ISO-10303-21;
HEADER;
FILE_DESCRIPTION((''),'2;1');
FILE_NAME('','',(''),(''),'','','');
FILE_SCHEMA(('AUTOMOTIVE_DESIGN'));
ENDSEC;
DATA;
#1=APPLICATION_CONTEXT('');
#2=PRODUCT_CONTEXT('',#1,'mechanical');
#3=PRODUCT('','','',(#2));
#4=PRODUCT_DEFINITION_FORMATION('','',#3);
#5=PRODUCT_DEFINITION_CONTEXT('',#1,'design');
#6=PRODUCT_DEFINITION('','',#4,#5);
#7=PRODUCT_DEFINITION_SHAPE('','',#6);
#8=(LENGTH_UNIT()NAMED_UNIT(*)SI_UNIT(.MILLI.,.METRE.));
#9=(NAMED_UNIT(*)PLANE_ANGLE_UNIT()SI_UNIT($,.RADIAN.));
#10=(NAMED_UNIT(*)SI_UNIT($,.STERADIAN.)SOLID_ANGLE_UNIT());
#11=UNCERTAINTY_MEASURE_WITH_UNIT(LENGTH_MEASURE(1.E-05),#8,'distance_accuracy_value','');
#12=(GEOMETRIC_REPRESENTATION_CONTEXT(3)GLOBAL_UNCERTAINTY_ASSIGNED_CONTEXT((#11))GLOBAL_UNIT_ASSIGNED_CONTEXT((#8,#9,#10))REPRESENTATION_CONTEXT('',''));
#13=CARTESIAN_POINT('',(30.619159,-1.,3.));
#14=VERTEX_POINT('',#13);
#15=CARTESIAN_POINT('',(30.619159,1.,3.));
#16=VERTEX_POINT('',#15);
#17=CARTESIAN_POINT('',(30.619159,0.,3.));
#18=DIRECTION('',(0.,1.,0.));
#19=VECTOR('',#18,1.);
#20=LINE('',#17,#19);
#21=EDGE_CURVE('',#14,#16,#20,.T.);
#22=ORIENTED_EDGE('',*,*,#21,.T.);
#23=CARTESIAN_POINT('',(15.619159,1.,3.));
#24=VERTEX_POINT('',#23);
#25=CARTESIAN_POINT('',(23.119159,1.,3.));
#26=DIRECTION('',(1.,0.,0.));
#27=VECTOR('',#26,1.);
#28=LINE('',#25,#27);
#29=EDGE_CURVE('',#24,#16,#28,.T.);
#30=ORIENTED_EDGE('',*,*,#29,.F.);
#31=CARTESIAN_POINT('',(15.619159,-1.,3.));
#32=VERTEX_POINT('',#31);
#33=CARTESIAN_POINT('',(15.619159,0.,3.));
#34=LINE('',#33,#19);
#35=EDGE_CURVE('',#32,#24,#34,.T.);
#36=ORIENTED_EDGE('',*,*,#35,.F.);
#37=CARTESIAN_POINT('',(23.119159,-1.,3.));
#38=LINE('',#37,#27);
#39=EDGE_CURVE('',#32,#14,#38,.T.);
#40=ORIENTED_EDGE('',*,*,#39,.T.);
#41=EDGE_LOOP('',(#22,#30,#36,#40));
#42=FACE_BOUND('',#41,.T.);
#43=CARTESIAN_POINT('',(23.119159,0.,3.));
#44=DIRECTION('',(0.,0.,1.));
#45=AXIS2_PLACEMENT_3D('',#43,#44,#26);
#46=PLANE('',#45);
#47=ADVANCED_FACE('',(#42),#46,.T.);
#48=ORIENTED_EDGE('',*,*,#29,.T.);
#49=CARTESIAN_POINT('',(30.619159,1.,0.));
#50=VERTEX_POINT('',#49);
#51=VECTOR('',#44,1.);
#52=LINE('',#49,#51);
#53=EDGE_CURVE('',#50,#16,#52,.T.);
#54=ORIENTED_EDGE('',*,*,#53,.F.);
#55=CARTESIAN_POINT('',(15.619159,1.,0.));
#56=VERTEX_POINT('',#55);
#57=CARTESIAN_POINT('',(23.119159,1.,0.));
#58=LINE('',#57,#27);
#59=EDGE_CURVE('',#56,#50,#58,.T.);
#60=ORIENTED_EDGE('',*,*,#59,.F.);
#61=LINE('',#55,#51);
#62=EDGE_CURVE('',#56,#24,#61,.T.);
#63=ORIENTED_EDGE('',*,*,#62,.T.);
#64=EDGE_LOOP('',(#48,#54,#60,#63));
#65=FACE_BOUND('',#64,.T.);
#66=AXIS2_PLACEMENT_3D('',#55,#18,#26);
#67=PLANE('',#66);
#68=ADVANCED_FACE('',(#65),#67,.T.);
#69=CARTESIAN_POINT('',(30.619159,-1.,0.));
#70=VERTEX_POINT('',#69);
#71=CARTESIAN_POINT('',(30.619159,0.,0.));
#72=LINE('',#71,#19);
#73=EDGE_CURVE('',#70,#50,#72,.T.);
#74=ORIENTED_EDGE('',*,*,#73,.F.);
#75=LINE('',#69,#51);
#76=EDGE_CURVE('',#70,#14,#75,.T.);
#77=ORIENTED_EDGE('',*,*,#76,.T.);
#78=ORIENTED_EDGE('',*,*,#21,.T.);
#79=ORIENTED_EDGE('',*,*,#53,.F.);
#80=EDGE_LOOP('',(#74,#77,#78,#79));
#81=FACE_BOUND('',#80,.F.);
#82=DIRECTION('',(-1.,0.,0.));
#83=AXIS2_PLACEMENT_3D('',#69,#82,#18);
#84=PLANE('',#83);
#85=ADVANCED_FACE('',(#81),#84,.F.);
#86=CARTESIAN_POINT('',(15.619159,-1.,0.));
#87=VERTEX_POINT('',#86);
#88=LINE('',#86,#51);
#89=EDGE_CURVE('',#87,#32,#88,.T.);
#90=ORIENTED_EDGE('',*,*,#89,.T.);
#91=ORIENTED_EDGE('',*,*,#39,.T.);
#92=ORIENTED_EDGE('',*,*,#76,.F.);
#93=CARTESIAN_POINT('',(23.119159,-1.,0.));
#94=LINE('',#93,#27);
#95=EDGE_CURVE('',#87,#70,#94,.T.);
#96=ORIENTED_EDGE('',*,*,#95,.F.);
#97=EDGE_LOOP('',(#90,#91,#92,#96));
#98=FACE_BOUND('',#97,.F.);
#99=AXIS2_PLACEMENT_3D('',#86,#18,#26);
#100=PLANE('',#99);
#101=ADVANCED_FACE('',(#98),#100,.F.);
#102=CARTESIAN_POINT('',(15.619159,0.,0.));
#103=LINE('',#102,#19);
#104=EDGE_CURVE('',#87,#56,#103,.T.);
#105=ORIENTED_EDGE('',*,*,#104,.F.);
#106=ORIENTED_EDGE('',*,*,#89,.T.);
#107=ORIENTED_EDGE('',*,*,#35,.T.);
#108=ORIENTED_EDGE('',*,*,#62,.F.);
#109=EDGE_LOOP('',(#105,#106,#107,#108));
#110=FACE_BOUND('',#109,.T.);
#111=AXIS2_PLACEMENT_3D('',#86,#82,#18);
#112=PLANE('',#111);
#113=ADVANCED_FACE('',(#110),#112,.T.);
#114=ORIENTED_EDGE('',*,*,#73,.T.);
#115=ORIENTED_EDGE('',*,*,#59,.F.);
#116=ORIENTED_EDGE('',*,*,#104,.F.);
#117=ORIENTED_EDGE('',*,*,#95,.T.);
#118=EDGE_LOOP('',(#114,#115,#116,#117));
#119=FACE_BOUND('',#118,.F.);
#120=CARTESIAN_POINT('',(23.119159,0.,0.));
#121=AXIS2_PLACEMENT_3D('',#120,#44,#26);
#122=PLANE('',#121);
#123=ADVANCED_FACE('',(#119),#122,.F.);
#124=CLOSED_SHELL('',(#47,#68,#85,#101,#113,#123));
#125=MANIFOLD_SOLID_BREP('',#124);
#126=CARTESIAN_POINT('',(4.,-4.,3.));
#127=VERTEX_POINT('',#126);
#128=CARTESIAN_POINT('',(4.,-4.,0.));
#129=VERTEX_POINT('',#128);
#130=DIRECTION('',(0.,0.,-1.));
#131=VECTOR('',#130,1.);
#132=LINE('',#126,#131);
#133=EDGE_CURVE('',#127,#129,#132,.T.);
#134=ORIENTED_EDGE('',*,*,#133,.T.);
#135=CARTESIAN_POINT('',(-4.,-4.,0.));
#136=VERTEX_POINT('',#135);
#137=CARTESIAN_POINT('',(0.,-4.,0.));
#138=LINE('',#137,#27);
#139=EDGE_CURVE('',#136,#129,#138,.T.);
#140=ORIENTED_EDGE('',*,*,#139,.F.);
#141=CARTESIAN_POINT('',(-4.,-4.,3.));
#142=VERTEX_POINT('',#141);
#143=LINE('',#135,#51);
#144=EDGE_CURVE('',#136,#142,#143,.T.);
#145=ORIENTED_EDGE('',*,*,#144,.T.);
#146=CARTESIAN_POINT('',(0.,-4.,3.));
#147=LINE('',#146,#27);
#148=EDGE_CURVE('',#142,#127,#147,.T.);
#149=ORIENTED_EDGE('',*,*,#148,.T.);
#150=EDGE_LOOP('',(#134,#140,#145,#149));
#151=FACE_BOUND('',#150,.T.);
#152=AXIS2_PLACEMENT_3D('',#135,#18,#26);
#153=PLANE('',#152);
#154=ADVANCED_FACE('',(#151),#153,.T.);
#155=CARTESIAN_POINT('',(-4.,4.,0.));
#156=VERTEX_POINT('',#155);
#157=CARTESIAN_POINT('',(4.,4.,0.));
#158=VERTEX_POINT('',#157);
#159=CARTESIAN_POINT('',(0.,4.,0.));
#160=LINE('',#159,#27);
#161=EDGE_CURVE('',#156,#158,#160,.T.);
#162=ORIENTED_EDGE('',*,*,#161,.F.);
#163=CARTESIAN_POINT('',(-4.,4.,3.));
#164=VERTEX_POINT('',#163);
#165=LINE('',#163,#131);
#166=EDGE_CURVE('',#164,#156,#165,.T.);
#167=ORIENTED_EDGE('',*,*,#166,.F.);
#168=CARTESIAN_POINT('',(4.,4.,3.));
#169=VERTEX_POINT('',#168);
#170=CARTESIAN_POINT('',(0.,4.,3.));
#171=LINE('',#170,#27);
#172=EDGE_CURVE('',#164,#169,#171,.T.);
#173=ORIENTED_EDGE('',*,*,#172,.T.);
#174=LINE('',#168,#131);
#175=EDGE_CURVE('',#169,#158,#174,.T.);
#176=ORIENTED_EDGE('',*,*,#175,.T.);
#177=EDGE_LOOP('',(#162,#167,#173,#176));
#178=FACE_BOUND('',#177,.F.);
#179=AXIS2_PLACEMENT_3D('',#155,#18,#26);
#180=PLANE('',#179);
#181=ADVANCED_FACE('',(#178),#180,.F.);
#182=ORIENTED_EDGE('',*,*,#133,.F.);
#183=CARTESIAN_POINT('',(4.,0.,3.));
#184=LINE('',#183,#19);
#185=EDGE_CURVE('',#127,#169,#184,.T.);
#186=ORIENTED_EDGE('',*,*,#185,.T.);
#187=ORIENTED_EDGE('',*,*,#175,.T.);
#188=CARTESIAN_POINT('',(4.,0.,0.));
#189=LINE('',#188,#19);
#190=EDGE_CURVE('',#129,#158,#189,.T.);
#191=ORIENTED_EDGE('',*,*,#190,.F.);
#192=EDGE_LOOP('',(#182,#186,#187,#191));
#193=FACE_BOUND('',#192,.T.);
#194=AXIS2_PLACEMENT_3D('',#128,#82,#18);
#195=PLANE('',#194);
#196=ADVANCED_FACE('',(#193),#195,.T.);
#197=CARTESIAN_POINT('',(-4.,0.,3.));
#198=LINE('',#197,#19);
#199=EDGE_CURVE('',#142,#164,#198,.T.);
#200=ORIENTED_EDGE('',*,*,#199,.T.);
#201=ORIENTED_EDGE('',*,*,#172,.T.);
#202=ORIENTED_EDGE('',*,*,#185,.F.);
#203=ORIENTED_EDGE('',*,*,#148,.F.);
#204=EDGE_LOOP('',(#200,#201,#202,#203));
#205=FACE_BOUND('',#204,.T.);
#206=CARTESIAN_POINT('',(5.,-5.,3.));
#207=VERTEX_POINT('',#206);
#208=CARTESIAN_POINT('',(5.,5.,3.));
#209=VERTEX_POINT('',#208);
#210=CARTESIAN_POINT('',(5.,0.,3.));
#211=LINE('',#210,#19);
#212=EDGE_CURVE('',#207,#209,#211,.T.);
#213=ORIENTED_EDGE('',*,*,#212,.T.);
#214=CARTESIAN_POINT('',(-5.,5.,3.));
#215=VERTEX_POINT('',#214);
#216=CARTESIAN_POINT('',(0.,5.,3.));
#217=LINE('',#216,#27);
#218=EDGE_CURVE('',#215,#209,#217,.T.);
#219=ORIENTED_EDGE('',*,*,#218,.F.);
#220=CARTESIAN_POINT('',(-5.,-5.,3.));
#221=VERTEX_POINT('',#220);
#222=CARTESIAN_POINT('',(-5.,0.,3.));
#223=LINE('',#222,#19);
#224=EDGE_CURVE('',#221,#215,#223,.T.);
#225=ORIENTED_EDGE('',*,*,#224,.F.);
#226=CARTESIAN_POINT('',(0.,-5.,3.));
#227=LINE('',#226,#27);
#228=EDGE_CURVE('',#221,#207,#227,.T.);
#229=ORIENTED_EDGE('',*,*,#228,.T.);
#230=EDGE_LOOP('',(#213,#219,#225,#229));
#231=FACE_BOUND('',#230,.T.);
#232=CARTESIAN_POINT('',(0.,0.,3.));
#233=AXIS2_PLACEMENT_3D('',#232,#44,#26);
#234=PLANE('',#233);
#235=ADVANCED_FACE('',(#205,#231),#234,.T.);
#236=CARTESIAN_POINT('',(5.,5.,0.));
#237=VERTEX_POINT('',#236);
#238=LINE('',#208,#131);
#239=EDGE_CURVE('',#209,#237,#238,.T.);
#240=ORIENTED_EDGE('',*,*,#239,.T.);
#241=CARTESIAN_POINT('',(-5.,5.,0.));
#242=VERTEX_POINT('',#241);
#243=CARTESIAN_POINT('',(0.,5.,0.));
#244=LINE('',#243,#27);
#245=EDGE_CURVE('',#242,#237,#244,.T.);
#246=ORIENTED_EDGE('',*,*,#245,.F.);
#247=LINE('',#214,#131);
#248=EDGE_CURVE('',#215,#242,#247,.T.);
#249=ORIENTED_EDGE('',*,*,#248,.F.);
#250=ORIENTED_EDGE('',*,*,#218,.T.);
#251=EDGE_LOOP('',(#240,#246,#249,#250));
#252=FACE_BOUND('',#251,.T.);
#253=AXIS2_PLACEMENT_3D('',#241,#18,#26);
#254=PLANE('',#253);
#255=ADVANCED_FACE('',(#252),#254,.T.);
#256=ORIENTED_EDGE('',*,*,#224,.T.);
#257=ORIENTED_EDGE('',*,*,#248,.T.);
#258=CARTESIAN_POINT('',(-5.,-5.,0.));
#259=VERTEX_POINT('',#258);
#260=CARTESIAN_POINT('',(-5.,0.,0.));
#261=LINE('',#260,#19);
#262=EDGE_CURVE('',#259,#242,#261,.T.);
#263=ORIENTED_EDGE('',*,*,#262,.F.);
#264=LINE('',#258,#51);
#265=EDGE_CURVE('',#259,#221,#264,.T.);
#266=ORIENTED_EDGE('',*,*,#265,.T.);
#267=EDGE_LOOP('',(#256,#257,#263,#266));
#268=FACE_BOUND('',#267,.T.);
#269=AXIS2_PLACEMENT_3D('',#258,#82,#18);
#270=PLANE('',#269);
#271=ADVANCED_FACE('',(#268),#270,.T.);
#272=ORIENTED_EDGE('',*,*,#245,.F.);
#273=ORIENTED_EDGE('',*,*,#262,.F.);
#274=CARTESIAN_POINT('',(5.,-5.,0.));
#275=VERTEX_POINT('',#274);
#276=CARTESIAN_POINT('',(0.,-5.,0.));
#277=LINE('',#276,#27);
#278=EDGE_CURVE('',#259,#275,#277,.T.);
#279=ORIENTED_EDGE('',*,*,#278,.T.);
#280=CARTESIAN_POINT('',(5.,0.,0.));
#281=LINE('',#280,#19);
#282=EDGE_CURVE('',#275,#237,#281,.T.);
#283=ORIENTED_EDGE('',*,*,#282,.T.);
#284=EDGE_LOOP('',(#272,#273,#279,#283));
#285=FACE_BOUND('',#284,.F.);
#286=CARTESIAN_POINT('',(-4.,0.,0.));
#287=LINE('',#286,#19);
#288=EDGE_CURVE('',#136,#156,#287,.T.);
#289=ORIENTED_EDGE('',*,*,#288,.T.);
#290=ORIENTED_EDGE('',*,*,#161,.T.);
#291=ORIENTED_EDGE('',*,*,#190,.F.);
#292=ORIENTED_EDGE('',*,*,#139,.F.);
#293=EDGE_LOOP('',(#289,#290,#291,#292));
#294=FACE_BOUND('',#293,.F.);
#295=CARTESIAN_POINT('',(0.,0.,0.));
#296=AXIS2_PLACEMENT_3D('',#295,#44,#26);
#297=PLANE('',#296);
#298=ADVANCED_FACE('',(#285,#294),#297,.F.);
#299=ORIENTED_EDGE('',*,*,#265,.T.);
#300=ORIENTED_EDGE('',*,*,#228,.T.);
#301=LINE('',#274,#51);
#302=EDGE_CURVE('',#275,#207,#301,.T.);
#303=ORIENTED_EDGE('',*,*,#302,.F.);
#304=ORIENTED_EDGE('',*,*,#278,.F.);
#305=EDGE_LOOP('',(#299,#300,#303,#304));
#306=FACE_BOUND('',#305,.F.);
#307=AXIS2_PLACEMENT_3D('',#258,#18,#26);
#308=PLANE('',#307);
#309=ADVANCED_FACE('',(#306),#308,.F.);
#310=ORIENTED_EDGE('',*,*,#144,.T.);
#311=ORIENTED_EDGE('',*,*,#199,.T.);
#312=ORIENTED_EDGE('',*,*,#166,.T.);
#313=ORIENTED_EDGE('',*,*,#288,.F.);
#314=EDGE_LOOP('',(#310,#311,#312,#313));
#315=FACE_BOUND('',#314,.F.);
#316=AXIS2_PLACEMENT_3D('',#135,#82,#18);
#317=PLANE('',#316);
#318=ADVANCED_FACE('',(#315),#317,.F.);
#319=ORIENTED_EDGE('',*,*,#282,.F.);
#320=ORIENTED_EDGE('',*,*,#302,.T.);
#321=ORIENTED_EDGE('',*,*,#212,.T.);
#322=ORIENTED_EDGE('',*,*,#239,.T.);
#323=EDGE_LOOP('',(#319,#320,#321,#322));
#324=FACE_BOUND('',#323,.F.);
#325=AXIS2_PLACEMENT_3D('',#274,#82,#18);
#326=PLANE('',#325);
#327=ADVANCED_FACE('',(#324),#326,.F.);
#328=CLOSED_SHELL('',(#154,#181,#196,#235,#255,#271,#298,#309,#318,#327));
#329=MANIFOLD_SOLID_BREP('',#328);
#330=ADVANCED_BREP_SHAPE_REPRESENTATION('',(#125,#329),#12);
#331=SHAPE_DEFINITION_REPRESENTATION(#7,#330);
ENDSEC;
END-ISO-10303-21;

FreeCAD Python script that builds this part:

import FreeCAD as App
import Part
import Sketcher
Q = App.Units.Quantity

doc = App.newDocument("Part")
body = doc.addObject("PartDesign::Body", "Body")
body.AllowCompound = True

sketch1 = body.newObject("Sketcher::SketchObject", "Sketch")
sketch1.AttachmentSupport = (doc.getObject("XY_Plane"), [""])
sketch1.MapMode = "FlatFace"
sketch1.addGeometry([
    Part.LineSegment(App.Vector(-5, 5, 0), App.Vector(-5, -5, 0)),
    Part.LineSegment(App.Vector(-5, -5, 0), App.Vector(5, -5, 0)),
    Part.LineSegment(App.Vector(5, -5, 0), App.Vector(5, 5, 0)),
    Part.LineSegment(App.Vector(5, 5, 0), App.Vector(-5, 5, 0)),
    Part.LineSegment(App.Vector(4, -4, 0), App.Vector(-4, -4, 0)),
    Part.LineSegment(App.Vector(-4, -4, 0), App.Vector(-4, 4, 0)),
    Part.LineSegment(App.Vector(-4, 4, 0), App.Vector(4, 4, 0)),
    Part.LineSegment(App.Vector(4, 4, 0), App.Vector(4, -4, 0)),
], False)
sketch1.addConstraint([
    Sketcher.Constraint("Coincident", 0, 2, 1, 1),
    Sketcher.Constraint("Coincident", 1, 2, 2, 1),
    Sketcher.Constraint("Coincident", 2, 2, 3, 1),
    Sketcher.Constraint("Coincident", 3, 2, 0, 1),
    Sketcher.Constraint("Coincident", 4, 2, 5, 1),
    Sketcher.Constraint("Coincident", 5, 2, 6, 1),
    Sketcher.Constraint("Coincident", 6, 2, 7, 1),
    Sketcher.Constraint("Coincident", 7, 2, 4, 1),
    Sketcher.Constraint("Vertical", 0),
    Sketcher.Constraint("Horizontal", 1),
    Sketcher.Constraint("Vertical", 2),
    Sketcher.Constraint("Horizontal", 3),
    Sketcher.Constraint("Horizontal", 4),
    Sketcher.Constraint("Vertical", 5),
    Sketcher.Constraint("Horizontal", 6),
    Sketcher.Constraint("Vertical", 7),
    Sketcher.Constraint("Symmetric", 0, 2, 2, 2, -1, 1),
    Sketcher.Constraint("Symmetric", 4, 2, 6, 2, -1, 1),
    Sketcher.Constraint("Equal", 3, 0),
    Sketcher.Constraint("Equal", 6, 5),
    Sketcher.Constraint("DistanceX", 1, 1, 1, 2, Q("10 mm")),
    Sketcher.Constraint("DistanceX", 4, 2, 4, 1, Q("8 mm")),
])
pad1 = body.newObject("PartDesign::Pad", "Pad")
pad1.Profile = sketch1
pad1.Length = 2

sketch2 = body.newObject("Sketcher::SketchObject", "Sketch001")
sketch2.AttachmentSupport = (doc.getObject("XY_Plane"), [""])
sketch2.MapMode = "FlatFace"
sketch2.addGeometry([
    Part.LineSegment(App.Vector(-5, 5, 0), App.Vector(-5, -5, 0)),
    Part.LineSegment(App.Vector(-5, -5, 0), App.Vector(5, -5, 0)),
    Part.LineSegment(App.Vector(5, -5, 0), App.Vector(5, 5, 0)),
    Part.LineSegment(App.Vector(5, 5, 0), App.Vector(-5, 5, 0)),
    Part.LineSegment(App.Vector(4, -4, 0), App.Vector(-4, -4, 0)),
    Part.LineSegment(App.Vector(-4, -4, 0), App.Vector(-4, 4, 0)),
    Part.LineSegment(App.Vector(-4, 4, 0), App.Vector(4, 4, 0)),
    Part.LineSegment(App.Vector(4, 4, 0), App.Vector(4, -4, 0)),
    Part.LineSegment(App.Vector(15.619159, 1, 0), App.Vector(15.619159, -1, 0)),
    Part.LineSegment(App.Vector(15.619159, -1, 0), App.Vector(30.619159, -1, 0)),
    Part.LineSegment(App.Vector(30.619159, -1, 0), App.Vector(30.619159, 1, 0)),
    Part.LineSegment(App.Vector(30.619159, 1, 0), App.Vector(15.619159, 1, 0)),
], False)
sketch2.addConstraint([
    Sketcher.Constraint("Coincident", 0, 2, 1, 1),
    Sketcher.Constraint("Coincident", 1, 2, 2, 1),
    Sketcher.Constraint("Coincident", 2, 2, 3, 1),
    Sketcher.Constraint("Coincident", 3, 2, 0, 1),
    Sketcher.Constraint("Coincident", 4, 2, 5, 1),
    Sketcher.Constraint("Coincident", 5, 2, 6, 1),
    Sketcher.Constraint("Coincident", 6, 2, 7, 1),
    Sketcher.Constraint("Coincident", 7, 2, 4, 1),
    Sketcher.Constraint("Coincident", 8, 2, 9, 1),
    Sketcher.Constraint("Coincident", 9, 2, 10, 1),
    Sketcher.Constraint("Coincident", 10, 2, 11, 1),
    Sketcher.Constraint("Coincident", 11, 2, 8, 1),
    Sketcher.Constraint("Vertical", 0),
    Sketcher.Constraint("Horizontal", 1),
    Sketcher.Constraint("Vertical", 2),
    Sketcher.Constraint("Horizontal", 3),
    Sketcher.Constraint("Horizontal", 4),
    Sketcher.Constraint("Vertical", 5),
    Sketcher.Constraint("Horizontal", 6),
    Sketcher.Constraint("Vertical", 7),
    Sketcher.Constraint("Vertical", 8),
    Sketcher.Constraint("Horizontal", 9),
    Sketcher.Constraint("Vertical", 10),
    Sketcher.Constraint("Horizontal", 11),
    Sketcher.Constraint("Symmetric", 0, 2, 2, 2, -1, 1),
    Sketcher.Constraint("Symmetric", 4, 2, 6, 2, -1, 1),
    Sketcher.Constraint("Equal", 3, 0),
    Sketcher.Constraint("Equal", 6, 5),
    Sketcher.Constraint("DistanceX", 1, 1, 1, 2, Q("10 mm")),
    Sketcher.Constraint("DistanceX", 4, 2, 4, 1, Q("8 mm")),
    Sketcher.Constraint("DistanceX", 9, 1, 9, 2, Q("15 mm")),
    Sketcher.Constraint("DistanceY", 8, 2, 8, 1, Q("2 mm")),
    Sketcher.Constraint("DistanceY", 8, 2, -1, 1, Q("1 mm")),
    Sketcher.Constraint("DistanceX", -1, 1, 8, 2, Q("15.619159 mm")),
])
pad2 = body.newObject("PartDesign::Pad", "Pad001")
pad2.Profile = sketch2
pad2.Length = 3

doc.recompute()
